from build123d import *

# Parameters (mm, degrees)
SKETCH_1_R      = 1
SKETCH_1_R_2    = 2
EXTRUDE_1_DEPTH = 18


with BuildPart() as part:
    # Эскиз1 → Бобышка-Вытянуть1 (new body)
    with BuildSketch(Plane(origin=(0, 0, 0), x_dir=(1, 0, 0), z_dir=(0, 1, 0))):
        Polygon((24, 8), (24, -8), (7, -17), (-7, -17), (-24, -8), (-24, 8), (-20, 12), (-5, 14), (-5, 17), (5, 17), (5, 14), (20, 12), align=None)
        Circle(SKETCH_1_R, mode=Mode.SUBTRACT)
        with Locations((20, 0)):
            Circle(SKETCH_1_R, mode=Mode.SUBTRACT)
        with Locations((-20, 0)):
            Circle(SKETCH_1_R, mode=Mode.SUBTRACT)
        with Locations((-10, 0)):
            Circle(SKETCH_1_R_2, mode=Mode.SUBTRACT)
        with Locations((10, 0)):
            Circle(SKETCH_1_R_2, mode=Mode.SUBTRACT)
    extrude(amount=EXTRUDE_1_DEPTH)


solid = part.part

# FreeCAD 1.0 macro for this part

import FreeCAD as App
import Part
import Sketcher

V = App.Vector


def add_polygon(sketch, points):
    """Adds a closed chain of lines whose ends are joined by coincident constraints."""
    first, n = sketch.GeometryCount, len(points)
    for a, b in zip(points, points[1:] + points[:1]):
        sketch.addGeometry(Part.LineSegment(App.Vector(*a, 0), App.Vector(*b, 0)), False)
    for i in range(n):
        sketch.addConstraint(Sketcher.Constraint("Coincident", first + i, 2, first + (i + 1) % n, 1))

doc = App.newDocument("Part")
body = doc.addObject("PartDesign::Body", "Body")

sketch1 = body.newObject("Sketcher::SketchObject", "Sketch")
sketch1.AttachmentSupport = (doc.getObject("XZ_Plane"), [""])
sketch1.MapMode = "FlatFace"
add_polygon(sketch1, [(24, 8), (24, -8), (20, -12), (5, -14), (5, -17), (-5, -17), (-5, -14), (-20, -12), (-24, -8), (-24, 8), (-7, 17), (7, 17)])
sketch1.addGeometry(Part.Circle(V(20, 0, 0), V(0, 0, 1), 1), False)
sketch1.addGeometry(Part.Circle(V(10, 0, 0), V(0, 0, 1), 2), False)
sketch1.addGeometry(Part.Circle(V(0, 0, 0), V(0, 0, 1), 1), False)
sketch1.addGeometry(Part.Circle(V(-10, 0, 0), V(0, 0, 1), 2), False)
sketch1.addGeometry(Part.Circle(V(-20, 0, 0), V(0, 0, 1), 1), False)
sketch1.addConstraint([
    Sketcher.Constraint("Vertical", 0),
    Sketcher.Constraint("Vertical", 3),
    Sketcher.Constraint("Horizontal", 4),
    Sketcher.Constraint("Vertical", 5),
    Sketcher.Constraint("Vertical", 8),
    Sketcher.Constraint("Horizontal", 10),
    Sketcher.Constraint("Coincident", 14, 3, -1, 1),
    Sketcher.Constraint("Equal", 12, 14),
    Sketcher.Constraint("Equal", 13, 15),
    Sketcher.Constraint("Equal", 14, 16),
    Sketcher.Constraint("Symmetric", 13, 3, 15, 3, -1, 1),
    Sketcher.Constraint("Symmetric", 12, 3, 16, 3, -1, 1),
    Sketcher.Constraint("Symmetric", 0, 2, 8, 2, -1, 1),
    Sketcher.Constraint("Symmetric", 2, 2, 5, 2, -2),
    Sketcher.Constraint("Symmetric", 1, 2, 6, 2, -2),
    Sketcher.Constraint("PointOnObject", 12, 3, -1),
    Sketcher.Constraint("PointOnObject", 13, 3, -1),
    Sketcher.Constraint("Perpendicular", 1, 7),
    Sketcher.Constraint("Horizontal", 0, 2, 7, 2),
    Sketcher.Constraint("Horizontal", 8, 2, 11, 2),
    Sketcher.Constraint("Vertical", 12, 3, 1, 2),
    Sketcher.Constraint("Equal", 9, 11),
    Sketcher.Constraint("Diameter", 12, 2.0),
    Sketcher.Constraint("Diameter", 13, 4.0),
    Sketcher.Constraint("DistanceX", 4, 2, 4, 1, 10.0),
    Sketcher.Constraint("DistanceX", 10, 1, 10, 2, 14.0),
    Sketcher.Constraint("DistanceY", 0, 2, 0, 1, 16.0),
    Sketcher.Constraint("DistanceY", 3, 2, 3, 1, 3.0),
    Sketcher.Constraint("DistanceX", -1, 1, 12, 3, 20.0),
    Sketcher.Constraint("DistanceX", -1, 1, 13, 3, 10.0),
    Sketcher.Constraint("DistanceX", -1, 1, 0, 2, 24.0),
    Sketcher.Constraint("DistanceY", 2, 2, -1, 1, 14.0),
    Sketcher.Constraint("DistanceY", -1, 1, 9, 2, 17.0),
])
pad1 = body.newObject("PartDesign::Pad", "Pad")
pad1.Profile = sketch1
pad1.Length = 18
pad1.Reversed = True

doc.recompute()
